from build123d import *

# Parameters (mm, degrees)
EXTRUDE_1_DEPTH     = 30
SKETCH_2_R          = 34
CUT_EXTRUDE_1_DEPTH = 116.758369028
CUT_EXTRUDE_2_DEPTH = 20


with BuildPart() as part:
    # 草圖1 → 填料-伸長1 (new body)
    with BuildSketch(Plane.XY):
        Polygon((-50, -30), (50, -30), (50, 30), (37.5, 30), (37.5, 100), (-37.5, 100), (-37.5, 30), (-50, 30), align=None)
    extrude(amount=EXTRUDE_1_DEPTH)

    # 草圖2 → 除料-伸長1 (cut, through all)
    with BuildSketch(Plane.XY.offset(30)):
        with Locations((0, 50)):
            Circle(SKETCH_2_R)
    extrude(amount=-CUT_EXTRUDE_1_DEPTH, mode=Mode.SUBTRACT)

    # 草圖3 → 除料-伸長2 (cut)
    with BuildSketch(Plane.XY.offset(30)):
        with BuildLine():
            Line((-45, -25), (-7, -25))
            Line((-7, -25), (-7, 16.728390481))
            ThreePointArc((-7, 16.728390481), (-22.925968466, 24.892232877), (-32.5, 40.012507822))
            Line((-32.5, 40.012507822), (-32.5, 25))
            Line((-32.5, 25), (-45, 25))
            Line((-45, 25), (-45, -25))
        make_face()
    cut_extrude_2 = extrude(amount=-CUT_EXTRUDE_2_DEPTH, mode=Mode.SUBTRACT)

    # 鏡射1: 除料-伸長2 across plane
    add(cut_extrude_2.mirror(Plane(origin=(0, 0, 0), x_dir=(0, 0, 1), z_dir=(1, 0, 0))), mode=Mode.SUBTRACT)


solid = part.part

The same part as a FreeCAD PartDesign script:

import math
import FreeCAD as App
import Part
import Sketcher

V = App.Vector


def add_polygon(sketch, points):
    """Adds a closed chain of lines whose ends are joined by coincident constraints."""
    first, n = sketch.GeometryCount, len(points)
    for a, b in zip(points, points[1:] + points[:1]):
        sketch.addGeometry(Part.LineSegment(App.Vector(*a, 0), App.Vector(*b, 0)), False)
    for i in range(n):
        sketch.addConstraint(Sketcher.Constraint("Coincident", first + i, 2, first + (i + 1) % n, 1))

doc = App.newDocument("Part")
body = doc.addObject("PartDesign::Body", "Body")

sketch1 = body.newObject("Sketcher::SketchObject", "Sketch")
sketch1.AttachmentSupport = (doc.getObject("XY_Plane"), [""])
sketch1.MapMode = "FlatFace"
add_polygon(sketch1, [(-50, -30), (50, -30), (50, 30), (38, 30), (38, 100), (-38, 100), (-38, 30), (-50, 30)])
sketch1.addConstraint(Sketcher.Constraint("Horizontal", 0))
sketch1.addConstraint(Sketcher.Constraint("Vertical", 1))
sketch1.addConstraint(Sketcher.Constraint("Horizontal", 2))
sketch1.addConstraint(Sketcher.Constraint("Vertical", 3))
sketch1.addConstraint(Sketcher.Constraint("Horizontal", 4))
sketch1.addConstraint(Sketcher.Constraint("Vertical", 5))
sketch1.addConstraint(Sketcher.Constraint("Horizontal", 6))
sketch1.addConstraint(Sketcher.Constraint("Vertical", 7))
sketch1.addConstraint(Sketcher.Constraint("Symmetric", 0, 2, 6, 2, -1, 1))
sketch1.addConstraint(Sketcher.Constraint("Symmetric", 2, 2, 5, 2, -2))
sketch1.addConstraint(Sketcher.Constraint("DistanceX", 0, 1, 0, 2, 100.0))
sketch1.addConstraint(Sketcher.Constraint("DistanceX", 4, 2, 4, 1, 75.0))
sketch1.addConstraint(Sketcher.Constraint("DistanceY", 1, 1, 1, 2, 60.0))
sketch1.addConstraint(Sketcher.Constraint("DistanceY", 3, 1, 3, 2, 70.0))
pad1 = body.newObject("PartDesign::Pad", "Pad")
pad1.Profile = sketch1
pad1.Length = 30

sketch2 = body.newObject("Sketcher::SketchObject", "Sketch001")
sketch2.AttachmentSupport = (doc.getObject("XY_Plane"), [""])
sketch2.MapMode = "FlatFace"
sketch2.AttachmentOffset = App.Placement(V(0, 0, 30), App.Rotation())
sketch2.addGeometry(Part.Circle(V(0, 50, 0), V(0, 0, 1), 34), False)
sketch2.addConstraint(Sketcher.Constraint("PointOnObject", 0, 3, -2))
sketch2.addConstraint(Sketcher.Constraint("Diameter", 0, 68.0))
sketch2.addConstraint(Sketcher.Constraint("DistanceY", -1, 1, 0, 3, 50.0))
pocket1 = body.newObject("PartDesign::Pocket", "Pocket")
pocket1.Profile = sketch2
pocket1.Type = "ThroughAll"

sketch3 = body.newObject("Sketcher::SketchObject", "Sketch002")
sketch3.AttachmentSupport = (doc.getObject("XY_Plane"), [""])
sketch3.MapMode = "FlatFace"
sketch3.AttachmentOffset = App.Placement(V(0, 0, 30), App.Rotation())
sketch3.addGeometry(Part.LineSegment(V(-45, -25, 0), V(-7, -25, 0)), False)
sketch3.addGeometry(Part.LineSegment(V(-7, -25, 0), V(-7, 17, 0)), False)
sketch3.addGeometry(Part.ArcOfCircle(Part.Circle(V(0, 50, 0), V(0, 0, 1), 34), math.radians(-163), math.radians(-102)), False)
sketch3.addGeometry(Part.LineSegment(V(-32, 40, 0), V(-32, 25, 0)), False)
sketch3.addGeometry(Part.LineSegment(V(-32, 25, 0), V(-45, 25, 0)), False)
sketch3.addGeometry(Part.LineSegment(V(-45, 25, 0), V(-45, -25, 0)), False)
sketch3.addConstraint(Sketcher.Constraint("Coincident", 0, 2, 1, 1))
sketch3.addConstraint(Sketcher.Constraint("Coincident", 1, 2, 2, 2))
sketch3.addConstraint(Sketcher.Constraint("Coincident", 2, 1, 3, 1))
sketch3.addConstraint(Sketcher.Constraint("Coincident", 3, 2, 4, 1))
sketch3.addConstraint(Sketcher.Constraint("Coincident", 4, 2, 5, 1))
sketch3.addConstraint(Sketcher.Constraint("Coincident", 5, 2, 0, 1))
sketch3.addConstraint(Sketcher.Constraint("Horizontal", 0))
sketch3.addConstraint(Sketcher.Constraint("Vertical", 1))
sketch3.addConstraint(Sketcher.Constraint("Vertical", 3))
sketch3.addConstraint(Sketcher.Constraint("Horizontal", 4))
sketch3.addConstraint(Sketcher.Constraint("Vertical", 5))
sketch3.addConstraint(Sketcher.Constraint("PointOnObject", 2, 3, -2))
sketch3.addConstraint(Sketcher.Constraint("Radius", 2, 34.0))
sketch3.addConstraint(Sketcher.Constraint("DistanceX", 0, 1, 0, 2, 38.0))
sketch3.addConstraint(Sketcher.Constraint("DistanceY", 5, 2, 5, 1, 50.0))
sketch3.addConstraint(Sketcher.Constraint("DistanceX", 4, 2, 4, 1, 12.5))
sketch3.addConstraint(Sketcher.Constraint("DistanceY", -1, 1, 2, 3, 50.0))
sketch3.addConstraint(Sketcher.Constraint("DistanceX", 0, 2, -1, 1, 7.0))
sketch3.addConstraint(Sketcher.Constraint("DistanceY", 0, 2, -1, 1, 25.0))
pocket2 = body.newObject("PartDesign::Pocket", "Pocket001")
pocket2.Profile = sketch3
pocket2.Length = 20
doc.recompute()

mirrored = body.newObject("PartDesign::Mirrored", "Mirrored")
mirrored.Originals = [pocket2]
mirrored.MirrorPlane = (doc.getObject("YZ_Plane"), [""])
body.Tip = mirrored

doc.recompute()
